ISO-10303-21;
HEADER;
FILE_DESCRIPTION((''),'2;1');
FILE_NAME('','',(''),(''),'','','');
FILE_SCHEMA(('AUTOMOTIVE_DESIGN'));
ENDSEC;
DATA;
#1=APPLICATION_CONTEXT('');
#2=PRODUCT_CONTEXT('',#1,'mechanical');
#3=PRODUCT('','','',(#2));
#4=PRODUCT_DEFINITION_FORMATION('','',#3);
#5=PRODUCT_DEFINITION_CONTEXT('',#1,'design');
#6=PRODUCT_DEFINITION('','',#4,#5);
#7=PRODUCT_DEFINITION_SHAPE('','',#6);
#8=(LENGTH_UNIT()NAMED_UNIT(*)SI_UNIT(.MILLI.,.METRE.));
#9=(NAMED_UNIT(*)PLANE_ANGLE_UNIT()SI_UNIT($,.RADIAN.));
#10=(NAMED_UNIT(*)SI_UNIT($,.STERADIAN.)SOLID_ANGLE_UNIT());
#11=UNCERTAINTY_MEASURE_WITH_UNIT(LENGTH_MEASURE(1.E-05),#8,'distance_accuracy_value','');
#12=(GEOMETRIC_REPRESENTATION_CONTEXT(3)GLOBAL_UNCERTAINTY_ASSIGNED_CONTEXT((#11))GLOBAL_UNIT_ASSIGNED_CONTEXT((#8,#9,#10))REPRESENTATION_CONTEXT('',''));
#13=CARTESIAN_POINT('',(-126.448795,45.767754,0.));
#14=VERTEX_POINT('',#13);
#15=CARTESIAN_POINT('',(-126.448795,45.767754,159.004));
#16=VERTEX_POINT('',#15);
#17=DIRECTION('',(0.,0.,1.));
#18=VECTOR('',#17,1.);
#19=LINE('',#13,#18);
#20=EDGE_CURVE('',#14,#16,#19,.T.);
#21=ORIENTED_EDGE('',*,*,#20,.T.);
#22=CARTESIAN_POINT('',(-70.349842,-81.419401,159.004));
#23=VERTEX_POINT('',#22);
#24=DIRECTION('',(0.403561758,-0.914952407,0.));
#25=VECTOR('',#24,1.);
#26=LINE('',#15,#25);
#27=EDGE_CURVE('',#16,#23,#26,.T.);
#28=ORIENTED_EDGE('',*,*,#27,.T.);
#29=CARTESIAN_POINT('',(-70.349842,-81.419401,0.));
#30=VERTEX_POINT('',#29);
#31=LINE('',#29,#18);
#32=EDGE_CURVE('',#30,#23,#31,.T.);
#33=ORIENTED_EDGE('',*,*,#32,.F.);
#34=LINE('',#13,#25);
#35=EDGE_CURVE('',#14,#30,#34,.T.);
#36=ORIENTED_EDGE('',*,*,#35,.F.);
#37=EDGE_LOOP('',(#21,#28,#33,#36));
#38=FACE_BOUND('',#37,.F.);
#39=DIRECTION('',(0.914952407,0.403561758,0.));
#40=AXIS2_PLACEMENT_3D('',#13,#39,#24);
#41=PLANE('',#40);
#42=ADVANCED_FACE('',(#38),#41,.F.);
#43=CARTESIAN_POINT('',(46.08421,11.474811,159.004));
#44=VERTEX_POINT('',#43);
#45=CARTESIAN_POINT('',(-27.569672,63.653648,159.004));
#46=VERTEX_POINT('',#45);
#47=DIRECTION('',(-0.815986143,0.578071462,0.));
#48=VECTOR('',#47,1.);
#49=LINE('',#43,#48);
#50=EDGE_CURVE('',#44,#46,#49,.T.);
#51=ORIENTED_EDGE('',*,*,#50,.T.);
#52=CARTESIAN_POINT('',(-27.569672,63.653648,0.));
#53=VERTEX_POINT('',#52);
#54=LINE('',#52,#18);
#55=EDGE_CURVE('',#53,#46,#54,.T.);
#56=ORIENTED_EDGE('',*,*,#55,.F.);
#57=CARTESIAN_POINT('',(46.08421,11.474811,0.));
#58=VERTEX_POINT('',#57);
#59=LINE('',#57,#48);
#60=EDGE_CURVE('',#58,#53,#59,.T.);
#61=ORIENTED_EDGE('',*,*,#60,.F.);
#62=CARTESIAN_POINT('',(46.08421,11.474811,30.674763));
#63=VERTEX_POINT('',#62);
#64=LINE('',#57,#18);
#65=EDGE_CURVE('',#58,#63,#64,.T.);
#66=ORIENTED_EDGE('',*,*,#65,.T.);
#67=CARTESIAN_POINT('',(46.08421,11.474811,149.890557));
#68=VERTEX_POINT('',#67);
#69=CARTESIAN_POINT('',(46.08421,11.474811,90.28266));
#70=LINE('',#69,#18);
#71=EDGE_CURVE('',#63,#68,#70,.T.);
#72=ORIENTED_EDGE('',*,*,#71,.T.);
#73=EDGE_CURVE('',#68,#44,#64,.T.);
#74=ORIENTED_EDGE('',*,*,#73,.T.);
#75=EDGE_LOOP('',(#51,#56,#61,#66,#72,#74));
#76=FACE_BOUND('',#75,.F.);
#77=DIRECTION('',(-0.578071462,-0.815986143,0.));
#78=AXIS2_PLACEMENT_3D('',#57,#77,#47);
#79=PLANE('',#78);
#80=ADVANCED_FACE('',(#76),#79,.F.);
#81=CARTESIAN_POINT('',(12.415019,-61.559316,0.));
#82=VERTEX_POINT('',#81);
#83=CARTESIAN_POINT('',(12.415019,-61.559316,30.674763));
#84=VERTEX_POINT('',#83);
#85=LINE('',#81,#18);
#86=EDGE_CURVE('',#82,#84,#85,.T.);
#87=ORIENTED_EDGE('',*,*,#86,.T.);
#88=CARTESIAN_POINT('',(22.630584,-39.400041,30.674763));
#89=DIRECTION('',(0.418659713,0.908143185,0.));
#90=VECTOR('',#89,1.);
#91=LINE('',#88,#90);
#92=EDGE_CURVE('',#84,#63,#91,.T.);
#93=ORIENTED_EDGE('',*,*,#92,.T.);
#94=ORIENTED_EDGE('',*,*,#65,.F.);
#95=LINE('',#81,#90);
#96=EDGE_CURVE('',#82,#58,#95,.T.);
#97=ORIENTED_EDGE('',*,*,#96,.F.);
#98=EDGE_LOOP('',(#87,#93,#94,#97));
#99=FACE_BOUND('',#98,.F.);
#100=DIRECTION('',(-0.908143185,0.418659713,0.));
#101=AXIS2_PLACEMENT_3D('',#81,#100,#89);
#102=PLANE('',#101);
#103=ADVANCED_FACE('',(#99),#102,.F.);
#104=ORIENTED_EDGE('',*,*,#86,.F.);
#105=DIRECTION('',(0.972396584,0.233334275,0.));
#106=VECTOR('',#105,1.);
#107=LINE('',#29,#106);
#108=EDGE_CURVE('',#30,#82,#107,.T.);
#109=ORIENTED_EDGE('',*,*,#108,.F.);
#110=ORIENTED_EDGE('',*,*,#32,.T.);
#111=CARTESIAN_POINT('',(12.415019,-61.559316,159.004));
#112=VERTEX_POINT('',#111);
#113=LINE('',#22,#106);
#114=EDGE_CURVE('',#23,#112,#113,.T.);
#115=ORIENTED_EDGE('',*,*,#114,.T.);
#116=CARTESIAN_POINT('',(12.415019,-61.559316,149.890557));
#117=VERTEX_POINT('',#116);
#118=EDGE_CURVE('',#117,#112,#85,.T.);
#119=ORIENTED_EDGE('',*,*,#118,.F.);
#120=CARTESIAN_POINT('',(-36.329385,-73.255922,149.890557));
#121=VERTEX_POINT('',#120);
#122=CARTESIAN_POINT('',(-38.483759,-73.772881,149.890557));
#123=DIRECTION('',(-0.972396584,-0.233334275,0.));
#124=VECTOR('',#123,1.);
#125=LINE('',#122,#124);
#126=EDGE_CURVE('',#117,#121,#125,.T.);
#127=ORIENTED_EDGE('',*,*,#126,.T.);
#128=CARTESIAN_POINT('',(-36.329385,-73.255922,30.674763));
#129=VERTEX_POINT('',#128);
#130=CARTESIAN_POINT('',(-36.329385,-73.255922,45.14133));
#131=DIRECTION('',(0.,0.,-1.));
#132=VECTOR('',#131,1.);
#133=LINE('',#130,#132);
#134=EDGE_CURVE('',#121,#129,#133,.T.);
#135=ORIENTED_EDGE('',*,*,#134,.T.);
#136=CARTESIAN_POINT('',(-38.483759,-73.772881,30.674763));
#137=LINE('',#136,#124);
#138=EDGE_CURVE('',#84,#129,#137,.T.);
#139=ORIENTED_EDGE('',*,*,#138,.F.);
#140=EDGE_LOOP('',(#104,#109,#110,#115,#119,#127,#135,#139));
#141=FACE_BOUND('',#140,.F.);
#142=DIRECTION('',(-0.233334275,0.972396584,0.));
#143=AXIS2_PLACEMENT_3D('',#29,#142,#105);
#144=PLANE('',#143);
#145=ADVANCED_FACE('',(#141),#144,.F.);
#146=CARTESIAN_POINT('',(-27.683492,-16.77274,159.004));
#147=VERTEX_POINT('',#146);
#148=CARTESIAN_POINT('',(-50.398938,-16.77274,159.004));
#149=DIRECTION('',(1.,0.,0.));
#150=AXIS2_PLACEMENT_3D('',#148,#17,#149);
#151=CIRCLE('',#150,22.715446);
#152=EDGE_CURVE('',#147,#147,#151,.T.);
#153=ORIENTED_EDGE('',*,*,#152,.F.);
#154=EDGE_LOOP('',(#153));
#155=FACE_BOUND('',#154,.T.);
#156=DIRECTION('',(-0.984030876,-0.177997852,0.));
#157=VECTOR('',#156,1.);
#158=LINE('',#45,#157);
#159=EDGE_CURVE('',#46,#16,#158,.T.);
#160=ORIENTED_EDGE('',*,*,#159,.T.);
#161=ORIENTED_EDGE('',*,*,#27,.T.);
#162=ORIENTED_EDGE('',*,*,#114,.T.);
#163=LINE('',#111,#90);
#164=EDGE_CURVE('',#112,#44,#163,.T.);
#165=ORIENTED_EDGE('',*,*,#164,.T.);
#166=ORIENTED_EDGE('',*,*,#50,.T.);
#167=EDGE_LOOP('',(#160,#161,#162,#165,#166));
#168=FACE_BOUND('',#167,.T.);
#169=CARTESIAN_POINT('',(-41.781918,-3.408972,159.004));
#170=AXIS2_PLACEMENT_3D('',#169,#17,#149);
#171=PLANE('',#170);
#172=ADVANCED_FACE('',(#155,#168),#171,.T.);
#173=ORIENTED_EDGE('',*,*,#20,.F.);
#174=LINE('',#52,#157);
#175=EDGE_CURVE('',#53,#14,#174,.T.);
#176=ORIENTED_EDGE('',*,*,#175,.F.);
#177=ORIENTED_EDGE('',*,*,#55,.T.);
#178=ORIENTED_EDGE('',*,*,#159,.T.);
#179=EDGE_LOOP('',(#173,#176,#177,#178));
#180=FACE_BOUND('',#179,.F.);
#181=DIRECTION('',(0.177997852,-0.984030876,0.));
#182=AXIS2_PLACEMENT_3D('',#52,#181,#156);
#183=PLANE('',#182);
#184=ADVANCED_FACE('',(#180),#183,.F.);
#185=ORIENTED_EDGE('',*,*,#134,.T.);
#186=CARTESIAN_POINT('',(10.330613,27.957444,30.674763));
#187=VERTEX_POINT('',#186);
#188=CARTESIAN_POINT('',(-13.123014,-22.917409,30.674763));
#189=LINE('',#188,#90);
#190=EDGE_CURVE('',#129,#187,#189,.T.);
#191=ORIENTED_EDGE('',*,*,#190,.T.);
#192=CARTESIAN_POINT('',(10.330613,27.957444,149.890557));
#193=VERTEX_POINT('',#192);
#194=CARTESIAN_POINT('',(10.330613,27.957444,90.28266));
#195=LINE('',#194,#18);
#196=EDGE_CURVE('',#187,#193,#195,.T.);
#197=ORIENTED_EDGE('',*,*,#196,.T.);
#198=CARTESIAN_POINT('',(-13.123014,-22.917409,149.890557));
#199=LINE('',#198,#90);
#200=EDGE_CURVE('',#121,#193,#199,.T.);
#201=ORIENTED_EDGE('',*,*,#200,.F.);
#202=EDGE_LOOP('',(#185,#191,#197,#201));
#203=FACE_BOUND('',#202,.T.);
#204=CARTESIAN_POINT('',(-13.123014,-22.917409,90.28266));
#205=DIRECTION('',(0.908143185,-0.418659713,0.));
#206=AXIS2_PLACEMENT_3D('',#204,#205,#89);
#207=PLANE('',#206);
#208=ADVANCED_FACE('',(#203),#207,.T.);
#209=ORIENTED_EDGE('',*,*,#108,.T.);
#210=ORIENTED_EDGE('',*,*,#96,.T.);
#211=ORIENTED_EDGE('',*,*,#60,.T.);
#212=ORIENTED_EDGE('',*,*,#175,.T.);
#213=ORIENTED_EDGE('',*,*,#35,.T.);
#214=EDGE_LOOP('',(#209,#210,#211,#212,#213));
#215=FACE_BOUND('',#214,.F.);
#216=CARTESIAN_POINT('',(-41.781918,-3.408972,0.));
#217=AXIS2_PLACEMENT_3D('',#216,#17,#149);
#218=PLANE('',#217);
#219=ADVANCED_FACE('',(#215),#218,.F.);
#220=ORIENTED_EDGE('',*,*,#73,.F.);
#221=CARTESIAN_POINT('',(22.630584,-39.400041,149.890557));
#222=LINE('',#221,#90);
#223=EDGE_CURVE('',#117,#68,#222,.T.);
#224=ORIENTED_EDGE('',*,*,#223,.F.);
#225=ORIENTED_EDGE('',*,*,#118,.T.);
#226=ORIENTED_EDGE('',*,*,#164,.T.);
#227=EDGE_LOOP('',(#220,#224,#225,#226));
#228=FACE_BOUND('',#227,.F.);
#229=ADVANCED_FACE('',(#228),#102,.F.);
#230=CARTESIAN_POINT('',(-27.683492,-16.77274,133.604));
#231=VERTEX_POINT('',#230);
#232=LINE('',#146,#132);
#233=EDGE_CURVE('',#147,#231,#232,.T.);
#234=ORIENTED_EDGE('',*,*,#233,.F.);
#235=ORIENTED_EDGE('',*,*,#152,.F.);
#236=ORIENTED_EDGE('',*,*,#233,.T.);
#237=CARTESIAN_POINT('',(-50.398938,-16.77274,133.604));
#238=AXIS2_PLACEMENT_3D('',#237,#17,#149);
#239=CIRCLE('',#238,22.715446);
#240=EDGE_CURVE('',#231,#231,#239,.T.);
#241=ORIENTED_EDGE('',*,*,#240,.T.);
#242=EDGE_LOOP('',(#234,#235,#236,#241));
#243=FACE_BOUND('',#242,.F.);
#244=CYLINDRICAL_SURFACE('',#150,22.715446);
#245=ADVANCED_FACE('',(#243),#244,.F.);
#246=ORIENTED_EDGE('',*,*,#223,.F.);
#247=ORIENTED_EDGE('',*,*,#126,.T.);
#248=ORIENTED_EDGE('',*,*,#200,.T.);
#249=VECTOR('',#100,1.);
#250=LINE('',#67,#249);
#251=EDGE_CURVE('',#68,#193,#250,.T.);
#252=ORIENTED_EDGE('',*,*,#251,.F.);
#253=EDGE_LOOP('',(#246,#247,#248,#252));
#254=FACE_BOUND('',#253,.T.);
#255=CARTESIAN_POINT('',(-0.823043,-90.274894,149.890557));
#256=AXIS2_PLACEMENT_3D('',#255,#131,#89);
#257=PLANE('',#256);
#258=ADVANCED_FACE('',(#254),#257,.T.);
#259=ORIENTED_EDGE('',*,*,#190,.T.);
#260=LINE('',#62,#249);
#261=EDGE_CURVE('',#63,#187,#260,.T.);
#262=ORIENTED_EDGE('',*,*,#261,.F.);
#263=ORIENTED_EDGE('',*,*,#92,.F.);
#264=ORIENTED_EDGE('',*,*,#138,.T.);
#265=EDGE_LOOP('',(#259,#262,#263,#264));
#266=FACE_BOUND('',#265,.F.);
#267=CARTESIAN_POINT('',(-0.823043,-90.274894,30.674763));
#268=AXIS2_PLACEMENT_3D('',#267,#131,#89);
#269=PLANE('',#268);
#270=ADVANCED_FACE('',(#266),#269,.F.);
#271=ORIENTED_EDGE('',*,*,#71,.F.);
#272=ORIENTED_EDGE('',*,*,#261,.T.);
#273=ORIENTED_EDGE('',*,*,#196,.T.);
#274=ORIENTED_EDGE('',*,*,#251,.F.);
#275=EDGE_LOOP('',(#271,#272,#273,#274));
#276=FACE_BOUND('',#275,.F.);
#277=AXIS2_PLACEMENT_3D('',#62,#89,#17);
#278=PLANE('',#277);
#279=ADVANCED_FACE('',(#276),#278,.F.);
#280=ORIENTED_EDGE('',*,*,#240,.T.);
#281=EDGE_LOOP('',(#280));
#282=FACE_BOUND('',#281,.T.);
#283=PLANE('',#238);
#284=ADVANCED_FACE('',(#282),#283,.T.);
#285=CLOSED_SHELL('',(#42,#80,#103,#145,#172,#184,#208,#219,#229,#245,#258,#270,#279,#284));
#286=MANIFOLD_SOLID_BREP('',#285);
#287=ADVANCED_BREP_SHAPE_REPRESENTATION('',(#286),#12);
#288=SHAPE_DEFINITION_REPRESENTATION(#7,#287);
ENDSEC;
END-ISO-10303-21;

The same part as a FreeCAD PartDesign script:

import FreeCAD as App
import Part
import Sketcher
from FreeCAD import Vector
Q = App.Units.Quantity


def add_polygon(sketch, points):
    """Adds a closed chain of lines whose ends are joined by coincident constraints."""
    first, n = sketch.GeometryCount, len(points)
    for a, b in zip(points, points[1:] + points[:1]):
        sketch.addGeometry(Part.LineSegment(App.Vector(*a, 0), App.Vector(*b, 0)), False)
    for i in range(n):
        sketch.addConstraint(Sketcher.Constraint("Coincident", first + i, 2, first + (i + 1) % n, 1))

doc = App.newDocument("Part")
params = doc.addObject("Spreadsheet::Sheet", "Params")
for row, (alias, value) in enumerate([
    ("pad1_length", "6.26 in"),
    ("pocket1_length", "1 in"),
    ("pocket2_length", "1.55 in"),
], start=1):
    params.set(f"A{row}", alias)
    params.set(f"B{row}", "=" + value)
    params.setAlias(f"B{row}", alias)

body = doc.addObject("PartDesign::Body", "Body")

# Sketch on XY plane
sketch1 = doc.addObject("Sketcher::SketchObject", "Sketch")
body.addObject(sketch1)
sketch1.AttachmentSupport = (doc.XY_Plane, [""])
sketch1.MapMode = "FlatFace"
add_polygon(sketch1, [(-126, 46), (-70, -81), (12, -62), (46, 11), (-28, 64)])  # lines 0-4
sketch1.addConstraint(Sketcher.Constraint("Angle", 2, Q("65.250002 deg")))
sketch1.addConstraint(Sketcher.Constraint("DistanceY", 0, 2, -1, 1, Q("81.419401 mm")))
sketch1.addConstraint(Sketcher.Constraint("Distance", 2, Q("80.421379 mm")))
sketch1.addConstraint(Sketcher.Constraint("Distance", 4, Q("100.483761 mm")))
sketch1.addConstraint(Sketcher.Constraint("DistanceX", -1, 1, 1, 2, Q("12.415019 mm")))
sketch1.addConstraint(Sketcher.Constraint("DistanceY", -1, 1, 2, 2, Q("11.474811 mm")))
sketch1.addConstraint(Sketcher.Constraint("DistanceX", 0, 2, 1, 2, Q("82.764861 mm")))
sketch1.addConstraint(Sketcher.Constraint("DistanceX", 3, 2, 1, 2, Q("39.984691 mm")))
sketch1.addConstraint(Sketcher.Constraint("DistanceY", 0, 2, 3, 2, Q("145.073049 mm")))
sketch1.addConstraint(Sketcher.Constraint("DistanceY", 1, 2, 4, 2, Q("107.32707 mm")))
pad1 = doc.addObject("PartDesign::Pad", "Pad")
body.addObject(pad1)
pad1.Profile = sketch1
pad1.setExpression("Length", "Params.pad1_length")

# Sketch on XY plane
sketch2 = doc.addObject("Sketcher::SketchObject", "Sketch001")
body.addObject(sketch2)
sketch2.AttachmentSupport = (doc.XY_Plane, [""])
sketch2.MapMode = "FlatFace"
sketch2.AttachmentOffset = App.Placement(Vector(0, 0, 6.26 * 25.4), App.Rotation())
sketch2.addGeometry(Part.Circle(Vector(-50, -17, 0), Vector(0, 0, 1), 23), False)
sketch2.addConstraint(Sketcher.Constraint("Diameter", 0, Q("45.430892 mm")))
sketch2.addConstraint(Sketcher.Constraint("DistanceX", 0, 3, -1, 1, Q("50.398938 mm")))
sketch2.addConstraint(Sketcher.Constraint("DistanceY", 0, 3, -1, 1, Q("16.77274 mm")))
pocket1 = doc.addObject("PartDesign::Pocket", "Pocket")
body.addObject(pocket1)
pocket1.Profile = sketch2
pocket1.setExpression("Length", "Params.pocket1_length")

# Sketch on an angled plane
sketch3 = doc.addObject("Sketcher::SketchObject", "Sketch002")
body.addObject(sketch3)
sketch3.Placement = App.Placement(Vector(33.643999, -15.510095, 0), App.Rotation(Vector(0.418659713, 0.908143185, 0), Vector(0, 0, 1), Vector(0.908143185, -0.418659713, 0), "ZXY"))
add_polygon(sketch3, [(-82, 150), (-82, 31), (30, 31), (30, 150)])  # lines 0-3
sketch3.addConstraint(Sketcher.Constraint("Vertical", 0))
sketch3.addConstraint(Sketcher.Constraint("Horizontal", 1))
sketch3.addConstraint(Sketcher.Constraint("Vertical", 2))
sketch3.addConstraint(Sketcher.Constraint("Horizontal", 3))
sketch3.addConstraint(Sketcher.Constraint("DistanceX", 1, 1, 1, 2, Q("112.041479 mm")))
sketch3.addConstraint(Sketcher.Constraint("DistanceY", 0, 2, 0, 1, Q("119.215794 mm")))
sketch3.addConstraint(Sketcher.Constraint("DistanceX", 0, 2, -1, 1, Q("82.327105 mm")))
sketch3.addConstraint(Sketcher.Constraint("DistanceY", -1, 1, 0, 2, Q("30.674763 mm")))
pocket2 = doc.addObject("PartDesign::Pocket", "Pocket001")
body.addObject(pocket2)
pocket2.Profile = sketch3
pocket2.setExpression("Length", "Params.pocket2_length")

doc.recompute()
